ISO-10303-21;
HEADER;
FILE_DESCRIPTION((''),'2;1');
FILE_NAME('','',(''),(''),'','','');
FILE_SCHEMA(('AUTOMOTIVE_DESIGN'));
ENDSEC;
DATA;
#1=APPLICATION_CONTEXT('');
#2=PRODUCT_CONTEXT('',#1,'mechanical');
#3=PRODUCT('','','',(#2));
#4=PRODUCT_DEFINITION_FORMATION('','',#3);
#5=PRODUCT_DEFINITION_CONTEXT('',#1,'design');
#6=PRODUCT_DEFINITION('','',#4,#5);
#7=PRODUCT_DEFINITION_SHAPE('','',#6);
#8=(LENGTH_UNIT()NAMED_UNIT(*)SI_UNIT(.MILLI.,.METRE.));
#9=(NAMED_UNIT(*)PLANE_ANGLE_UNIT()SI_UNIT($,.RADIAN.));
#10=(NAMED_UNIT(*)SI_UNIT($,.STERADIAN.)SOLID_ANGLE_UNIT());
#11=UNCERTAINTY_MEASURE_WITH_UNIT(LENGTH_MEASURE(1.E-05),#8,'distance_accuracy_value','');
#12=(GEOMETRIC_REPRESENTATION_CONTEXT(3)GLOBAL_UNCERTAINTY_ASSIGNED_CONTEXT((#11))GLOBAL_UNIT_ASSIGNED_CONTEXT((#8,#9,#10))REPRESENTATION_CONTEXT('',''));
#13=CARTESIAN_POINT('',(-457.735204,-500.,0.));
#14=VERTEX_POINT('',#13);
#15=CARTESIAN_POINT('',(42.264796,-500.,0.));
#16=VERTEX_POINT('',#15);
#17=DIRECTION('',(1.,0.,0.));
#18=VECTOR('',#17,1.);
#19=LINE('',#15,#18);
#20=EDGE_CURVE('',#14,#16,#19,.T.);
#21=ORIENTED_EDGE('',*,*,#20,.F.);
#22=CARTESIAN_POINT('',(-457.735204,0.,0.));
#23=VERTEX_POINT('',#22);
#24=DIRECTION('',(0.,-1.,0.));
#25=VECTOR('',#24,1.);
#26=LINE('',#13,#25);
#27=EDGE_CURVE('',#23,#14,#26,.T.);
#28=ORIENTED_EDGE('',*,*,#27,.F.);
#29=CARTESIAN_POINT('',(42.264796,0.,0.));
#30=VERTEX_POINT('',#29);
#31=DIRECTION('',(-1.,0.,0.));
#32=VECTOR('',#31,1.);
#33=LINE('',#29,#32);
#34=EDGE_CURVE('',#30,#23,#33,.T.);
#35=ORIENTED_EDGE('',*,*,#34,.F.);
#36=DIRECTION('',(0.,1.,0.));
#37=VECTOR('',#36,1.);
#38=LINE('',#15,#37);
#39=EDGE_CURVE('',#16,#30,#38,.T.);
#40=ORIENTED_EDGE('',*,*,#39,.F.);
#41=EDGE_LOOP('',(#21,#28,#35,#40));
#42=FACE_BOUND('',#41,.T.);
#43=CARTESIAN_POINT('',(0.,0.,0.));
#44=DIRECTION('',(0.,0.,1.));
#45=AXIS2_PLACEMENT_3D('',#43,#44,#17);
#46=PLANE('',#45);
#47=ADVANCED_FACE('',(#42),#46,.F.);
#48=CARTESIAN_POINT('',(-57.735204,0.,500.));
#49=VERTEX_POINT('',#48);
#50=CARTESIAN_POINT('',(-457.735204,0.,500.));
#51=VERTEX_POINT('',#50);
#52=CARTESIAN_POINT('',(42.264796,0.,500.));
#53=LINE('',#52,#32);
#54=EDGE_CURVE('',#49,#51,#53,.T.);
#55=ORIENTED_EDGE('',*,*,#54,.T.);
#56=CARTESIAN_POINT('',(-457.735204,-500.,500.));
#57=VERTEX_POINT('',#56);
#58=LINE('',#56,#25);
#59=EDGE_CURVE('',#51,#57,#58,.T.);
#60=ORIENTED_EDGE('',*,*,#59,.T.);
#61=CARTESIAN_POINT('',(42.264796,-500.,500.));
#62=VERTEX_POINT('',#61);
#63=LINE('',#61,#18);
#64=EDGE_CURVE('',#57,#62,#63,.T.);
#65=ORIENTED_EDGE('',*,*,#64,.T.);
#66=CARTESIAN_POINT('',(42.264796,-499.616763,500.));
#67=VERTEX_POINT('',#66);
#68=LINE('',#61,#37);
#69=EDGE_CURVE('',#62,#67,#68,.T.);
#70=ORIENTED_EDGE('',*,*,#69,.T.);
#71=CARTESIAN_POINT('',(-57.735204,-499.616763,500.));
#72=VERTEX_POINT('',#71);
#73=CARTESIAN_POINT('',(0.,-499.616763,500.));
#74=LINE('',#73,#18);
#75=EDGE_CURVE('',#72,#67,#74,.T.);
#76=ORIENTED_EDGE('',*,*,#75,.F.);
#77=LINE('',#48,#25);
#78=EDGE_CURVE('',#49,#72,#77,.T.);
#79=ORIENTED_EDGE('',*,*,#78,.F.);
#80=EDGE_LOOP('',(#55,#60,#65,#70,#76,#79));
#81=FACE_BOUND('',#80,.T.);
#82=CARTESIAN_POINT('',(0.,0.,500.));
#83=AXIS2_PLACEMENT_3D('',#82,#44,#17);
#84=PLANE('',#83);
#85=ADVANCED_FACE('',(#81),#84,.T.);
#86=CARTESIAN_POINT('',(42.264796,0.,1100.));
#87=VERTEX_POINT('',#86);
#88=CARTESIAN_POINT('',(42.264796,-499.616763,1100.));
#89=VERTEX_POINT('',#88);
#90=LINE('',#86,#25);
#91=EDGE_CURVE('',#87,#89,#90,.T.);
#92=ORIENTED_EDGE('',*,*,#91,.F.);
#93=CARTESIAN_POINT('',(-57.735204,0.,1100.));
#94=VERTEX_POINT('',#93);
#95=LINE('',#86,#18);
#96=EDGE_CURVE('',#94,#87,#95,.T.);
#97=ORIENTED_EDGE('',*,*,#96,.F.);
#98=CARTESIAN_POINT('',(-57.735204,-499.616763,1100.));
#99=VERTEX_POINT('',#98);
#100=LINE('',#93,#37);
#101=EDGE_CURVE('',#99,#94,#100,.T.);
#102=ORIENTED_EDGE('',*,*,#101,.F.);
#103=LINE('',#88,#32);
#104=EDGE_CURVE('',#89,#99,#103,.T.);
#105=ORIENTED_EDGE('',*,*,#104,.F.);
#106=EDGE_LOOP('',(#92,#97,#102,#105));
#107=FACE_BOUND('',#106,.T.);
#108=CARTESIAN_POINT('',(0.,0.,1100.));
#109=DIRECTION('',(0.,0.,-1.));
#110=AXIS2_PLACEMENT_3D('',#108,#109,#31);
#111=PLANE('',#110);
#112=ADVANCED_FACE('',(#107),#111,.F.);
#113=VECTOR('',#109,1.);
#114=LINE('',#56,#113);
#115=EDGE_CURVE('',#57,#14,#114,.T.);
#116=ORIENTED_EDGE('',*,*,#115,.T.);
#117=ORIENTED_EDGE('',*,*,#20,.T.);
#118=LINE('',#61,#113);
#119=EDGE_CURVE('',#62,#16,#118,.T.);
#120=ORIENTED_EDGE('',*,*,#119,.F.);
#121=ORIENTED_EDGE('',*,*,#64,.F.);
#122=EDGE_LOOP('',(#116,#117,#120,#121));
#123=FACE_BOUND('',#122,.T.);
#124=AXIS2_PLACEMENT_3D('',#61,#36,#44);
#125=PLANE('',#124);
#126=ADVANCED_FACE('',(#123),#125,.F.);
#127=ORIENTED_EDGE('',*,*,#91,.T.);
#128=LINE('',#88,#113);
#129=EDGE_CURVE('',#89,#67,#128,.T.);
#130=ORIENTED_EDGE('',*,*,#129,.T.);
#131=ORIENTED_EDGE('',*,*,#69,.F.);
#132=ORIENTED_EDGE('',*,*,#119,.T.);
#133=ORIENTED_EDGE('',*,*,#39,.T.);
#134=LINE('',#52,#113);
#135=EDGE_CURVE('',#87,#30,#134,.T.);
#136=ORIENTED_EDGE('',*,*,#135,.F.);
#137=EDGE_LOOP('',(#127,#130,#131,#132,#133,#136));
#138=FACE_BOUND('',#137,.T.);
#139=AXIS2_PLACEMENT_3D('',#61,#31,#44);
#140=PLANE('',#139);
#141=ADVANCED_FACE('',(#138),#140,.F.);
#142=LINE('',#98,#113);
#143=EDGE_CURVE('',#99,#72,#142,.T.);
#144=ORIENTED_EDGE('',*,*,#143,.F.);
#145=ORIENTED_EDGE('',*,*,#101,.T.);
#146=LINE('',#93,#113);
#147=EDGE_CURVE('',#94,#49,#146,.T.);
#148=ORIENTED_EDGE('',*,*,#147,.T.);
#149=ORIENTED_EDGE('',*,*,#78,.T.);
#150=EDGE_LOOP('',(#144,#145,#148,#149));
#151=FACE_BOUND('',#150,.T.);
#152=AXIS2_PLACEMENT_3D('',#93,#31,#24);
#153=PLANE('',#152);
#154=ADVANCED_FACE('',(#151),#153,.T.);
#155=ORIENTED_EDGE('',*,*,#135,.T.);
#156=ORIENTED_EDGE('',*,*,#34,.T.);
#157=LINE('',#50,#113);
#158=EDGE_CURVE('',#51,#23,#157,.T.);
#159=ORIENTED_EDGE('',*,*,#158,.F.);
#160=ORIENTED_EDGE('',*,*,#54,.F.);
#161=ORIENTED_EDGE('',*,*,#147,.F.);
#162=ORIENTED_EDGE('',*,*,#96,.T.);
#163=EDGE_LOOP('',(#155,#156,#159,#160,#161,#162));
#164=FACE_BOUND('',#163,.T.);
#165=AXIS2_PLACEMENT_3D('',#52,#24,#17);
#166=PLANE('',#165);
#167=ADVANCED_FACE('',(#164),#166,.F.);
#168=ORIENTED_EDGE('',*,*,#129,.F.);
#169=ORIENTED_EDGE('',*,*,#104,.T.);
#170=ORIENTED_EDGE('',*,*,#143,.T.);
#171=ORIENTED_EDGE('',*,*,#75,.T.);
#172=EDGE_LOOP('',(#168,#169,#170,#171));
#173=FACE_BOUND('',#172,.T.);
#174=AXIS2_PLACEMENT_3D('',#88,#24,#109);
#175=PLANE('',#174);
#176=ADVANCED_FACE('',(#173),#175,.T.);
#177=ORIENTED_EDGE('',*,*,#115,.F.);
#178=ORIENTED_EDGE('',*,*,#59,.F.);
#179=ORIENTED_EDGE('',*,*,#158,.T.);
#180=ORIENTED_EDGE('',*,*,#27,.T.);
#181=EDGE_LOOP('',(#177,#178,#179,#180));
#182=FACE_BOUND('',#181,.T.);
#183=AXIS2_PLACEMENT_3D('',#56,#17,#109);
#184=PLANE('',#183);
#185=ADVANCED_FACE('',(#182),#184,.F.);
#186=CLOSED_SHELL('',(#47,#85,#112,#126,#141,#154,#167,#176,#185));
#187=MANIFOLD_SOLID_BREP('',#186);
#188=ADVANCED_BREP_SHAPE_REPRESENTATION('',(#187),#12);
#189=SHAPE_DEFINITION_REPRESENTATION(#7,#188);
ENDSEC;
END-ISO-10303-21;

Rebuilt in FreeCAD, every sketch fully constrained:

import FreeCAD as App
import Part
import Sketcher
from FreeCAD import Vector
Q = App.Units.Quantity


def add_polygon(sketch, points):
    """Adds a closed chain of lines whose ends are joined by coincident constraints."""
    first, n = sketch.GeometryCount, len(points)
    for a, b in zip(points, points[1:] + points[:1]):
        sketch.addGeometry(Part.LineSegment(App.Vector(*a, 0), App.Vector(*b, 0)), False)
    for i in range(n):
        sketch.addConstraint(Sketcher.Constraint("Coincident", first + i, 2, first + (i + 1) % n, 1))

doc = App.newDocument("Part")
body = doc.addObject("PartDesign::Body", "Body")

# Sketch on XY plane
sketch1 = body.newObject("Sketcher::SketchObject", "Sketch")
sketch1.AttachmentSupport = (doc.getObject("XY_Plane"), [""])
sketch1.MapMode = "FlatFace"
add_polygon(sketch1, [(-457.735204, 0), (-457.735204, -500), (42.264796, -500), (42.264796, 0)])  # lines 0-3
sketch1.addConstraint([
    Sketcher.Constraint("Vertical", 0),
    Sketcher.Constraint("Horizontal", 1),
    Sketcher.Constraint("Vertical", 2),
    Sketcher.Constraint("Horizontal", 3),
    Sketcher.Constraint("PointOnObject", 2, 2, -1),
    Sketcher.Constraint("Equal", 3, 0),
    Sketcher.Constraint("DistanceX", 1, 1, 1, 2, Q("500 mm")),
    Sketcher.Constraint("DistanceX", 0, 2, -1, 1, Q("457.735204 mm")),
])
pad1 = body.newObject("PartDesign::Pad", "Pad")
pad1.Profile = sketch1
pad1.Length = 500

# Sketch on XY plane
sketch2 = body.newObject("Sketcher::SketchObject", "Sketch001")
sketch2.AttachmentSupport = (doc.getObject("XY_Plane"), [""])
sketch2.MapMode = "FlatFace"
add_polygon(sketch2, [(42.264796, 0), (42.264796, -499.616763), (-57.735204, -499.616763), (-57.735204, 0)])  # lines 0-3
sketch2.addConstraint([
    Sketcher.Constraint("Vertical", 0),
    Sketcher.Constraint("Horizontal", 1),
    Sketcher.Constraint("Vertical", 2),
    Sketcher.Constraint("Horizontal", 3),
    Sketcher.Constraint("PointOnObject", 2, 2, -1),
    Sketcher.Constraint("DistanceX", 1, 2, 1, 1, Q("100 mm")),
    Sketcher.Constraint("DistanceY", 0, 2, 0, 1, Q("499.616763 mm")),
    Sketcher.Constraint("DistanceX", -1, 1, 0, 2, Q("42.264796 mm")),
])
pad2 = body.newObject("PartDesign::Pad", "Pad001")
pad2.Profile = sketch2
pad2.Length = 1100

doc.recompute()
